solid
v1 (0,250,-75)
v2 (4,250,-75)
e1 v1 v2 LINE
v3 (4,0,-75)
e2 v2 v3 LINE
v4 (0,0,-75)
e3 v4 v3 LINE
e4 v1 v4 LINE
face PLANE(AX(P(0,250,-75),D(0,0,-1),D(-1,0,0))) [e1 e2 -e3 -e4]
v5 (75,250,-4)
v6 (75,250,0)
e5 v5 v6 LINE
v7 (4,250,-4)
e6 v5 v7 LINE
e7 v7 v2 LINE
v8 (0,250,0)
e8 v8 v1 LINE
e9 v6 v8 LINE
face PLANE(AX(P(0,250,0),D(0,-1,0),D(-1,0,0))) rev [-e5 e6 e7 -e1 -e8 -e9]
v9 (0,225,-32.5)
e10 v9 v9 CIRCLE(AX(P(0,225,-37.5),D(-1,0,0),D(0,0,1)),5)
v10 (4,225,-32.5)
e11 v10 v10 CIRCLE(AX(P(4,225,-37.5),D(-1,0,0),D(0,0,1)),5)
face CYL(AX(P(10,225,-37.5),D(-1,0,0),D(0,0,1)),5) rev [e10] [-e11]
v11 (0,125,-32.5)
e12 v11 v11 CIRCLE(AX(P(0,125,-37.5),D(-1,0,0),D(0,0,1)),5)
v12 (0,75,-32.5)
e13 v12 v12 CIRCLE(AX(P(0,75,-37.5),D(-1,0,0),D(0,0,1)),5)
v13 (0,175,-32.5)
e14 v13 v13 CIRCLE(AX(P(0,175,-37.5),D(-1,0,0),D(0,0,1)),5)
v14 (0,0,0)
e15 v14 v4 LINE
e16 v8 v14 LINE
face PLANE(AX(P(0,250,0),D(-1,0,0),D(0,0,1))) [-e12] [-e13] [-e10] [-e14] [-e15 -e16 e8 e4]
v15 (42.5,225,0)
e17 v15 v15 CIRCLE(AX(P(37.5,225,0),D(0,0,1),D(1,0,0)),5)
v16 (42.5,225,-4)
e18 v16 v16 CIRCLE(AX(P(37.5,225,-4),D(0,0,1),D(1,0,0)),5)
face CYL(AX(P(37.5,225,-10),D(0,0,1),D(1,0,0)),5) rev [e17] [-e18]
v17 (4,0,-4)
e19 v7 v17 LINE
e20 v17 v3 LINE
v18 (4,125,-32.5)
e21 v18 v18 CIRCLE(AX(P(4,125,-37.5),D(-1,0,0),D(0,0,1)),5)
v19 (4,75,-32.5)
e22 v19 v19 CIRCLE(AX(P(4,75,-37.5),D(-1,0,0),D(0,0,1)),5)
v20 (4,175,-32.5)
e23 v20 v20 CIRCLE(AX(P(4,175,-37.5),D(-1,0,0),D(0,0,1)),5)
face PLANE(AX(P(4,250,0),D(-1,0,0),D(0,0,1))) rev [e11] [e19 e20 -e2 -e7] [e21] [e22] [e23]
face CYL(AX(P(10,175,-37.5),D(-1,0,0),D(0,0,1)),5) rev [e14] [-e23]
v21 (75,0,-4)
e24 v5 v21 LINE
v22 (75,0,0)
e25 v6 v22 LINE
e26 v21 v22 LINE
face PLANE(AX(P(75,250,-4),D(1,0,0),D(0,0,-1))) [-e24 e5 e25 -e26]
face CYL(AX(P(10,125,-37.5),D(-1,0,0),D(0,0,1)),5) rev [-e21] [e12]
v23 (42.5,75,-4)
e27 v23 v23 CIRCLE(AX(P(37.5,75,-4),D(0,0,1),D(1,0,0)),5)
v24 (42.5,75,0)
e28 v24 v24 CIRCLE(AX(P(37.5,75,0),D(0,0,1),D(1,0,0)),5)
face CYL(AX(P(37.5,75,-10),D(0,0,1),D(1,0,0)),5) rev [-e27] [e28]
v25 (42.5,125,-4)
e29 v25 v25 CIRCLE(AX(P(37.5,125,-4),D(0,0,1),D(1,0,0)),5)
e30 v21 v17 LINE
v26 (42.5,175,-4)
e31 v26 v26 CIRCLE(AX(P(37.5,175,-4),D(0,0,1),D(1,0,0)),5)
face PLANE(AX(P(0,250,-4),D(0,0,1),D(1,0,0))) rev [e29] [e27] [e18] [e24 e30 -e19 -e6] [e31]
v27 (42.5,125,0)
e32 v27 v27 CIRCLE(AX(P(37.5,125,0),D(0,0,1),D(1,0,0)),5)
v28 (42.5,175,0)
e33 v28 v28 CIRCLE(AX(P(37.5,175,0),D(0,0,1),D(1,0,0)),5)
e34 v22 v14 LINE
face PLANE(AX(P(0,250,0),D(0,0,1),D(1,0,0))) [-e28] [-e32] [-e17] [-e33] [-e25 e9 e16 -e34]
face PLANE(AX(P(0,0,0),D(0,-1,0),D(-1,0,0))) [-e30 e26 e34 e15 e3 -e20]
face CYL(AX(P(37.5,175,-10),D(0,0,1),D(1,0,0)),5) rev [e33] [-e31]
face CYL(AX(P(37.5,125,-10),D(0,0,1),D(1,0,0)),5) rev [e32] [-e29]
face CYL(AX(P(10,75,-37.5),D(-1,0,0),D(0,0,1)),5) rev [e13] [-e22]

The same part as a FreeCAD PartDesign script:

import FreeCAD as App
import Part
import Sketcher

V = App.Vector
Q = App.Units.Quantity


def add_polygon(sketch, points):
    """Adds a closed chain of lines whose ends are joined by coincident constraints."""
    first, n = sketch.GeometryCount, len(points)
    for a, b in zip(points, points[1:] + points[:1]):
        sketch.addGeometry(Part.LineSegment(App.Vector(*a, 0), App.Vector(*b, 0)), False)
    for i in range(n):
        sketch.addConstraint(Sketcher.Constraint("Coincident", first + i, 2, first + (i + 1) % n, 1))

doc = App.newDocument("Part")
body = doc.addObject("PartDesign::Body", "Body")

# Sketch on XZ plane
sketch1 = body.newObject("Sketcher::SketchObject", "Sketch")
sketch1.AttachmentSupport = (doc.getObject("XZ_Plane"), [""])
sketch1.MapMode = "FlatFace"
add_polygon(sketch1, [(0, -75), (0, 0), (75, 0), (75, -4), (4, -4), (4, -75)])  # lines 0-5
sketch1.addConstraint([
    Sketcher.Constraint("Vertical", 0),
    Sketcher.Constraint("Horizontal", 1),
    Sketcher.Constraint("Vertical", 2),
    Sketcher.Constraint("Horizontal", 3),
    Sketcher.Constraint("Vertical", 4),
    Sketcher.Constraint("Horizontal", 5),
    Sketcher.Constraint("Coincident", 0, 2, -1, 1),
    Sketcher.Constraint("Equal", 1, 0),
    Sketcher.Constraint("Equal", 5, 2),
    Sketcher.Constraint("DistanceX", 1, 1, 1, 2, Q("75 mm")),
    Sketcher.Constraint("DistanceX", 3, 2, 3, 1, Q("71 mm")),
])
pad1 = body.newObject("PartDesign::Pad", "Pad")
pad1.Profile = sketch1
pad1.Length = 250
pad1.Reversed = True

# Sketch on XY plane
sketch2 = body.newObject("Sketcher::SketchObject", "Sketch001")
sketch2.AttachmentSupport = (doc.getObject("XY_Plane"), [""])
sketch2.MapMode = "FlatFace"
sketch2.addGeometry([
    Part.Circle(V(38, 225, 0), V(0, 0, 1), 5),
    Part.Circle(V(38, 175, 0), V(0, 0, 1), 5),
    Part.Circle(V(38, 125, 0), V(0, 0, 1), 5),
    Part.Circle(V(38, 75, 0), V(0, 0, 1), 5),
], False)
sketch2.addConstraint([
    Sketcher.Constraint("Equal", 0, 1),
    Sketcher.Constraint("Equal", 1, 2),
    Sketcher.Constraint("Equal", 2, 3),
    Sketcher.Constraint("Vertical", 0, 3, 1, 3),
    Sketcher.Constraint("Vertical", 1, 3, 2, 3),
    Sketcher.Constraint("Vertical", 2, 3, 3, 3),
    Sketcher.Constraint("Diameter", 0, Q("10 mm")),
    Sketcher.Constraint("DistanceY", -1, 1, 0, 3, Q("225 mm")),
    Sketcher.Constraint("DistanceY", -1, 1, 1, 3, Q("175 mm")),
    Sketcher.Constraint("DistanceY", -1, 1, 2, 3, Q("125 mm")),
    Sketcher.Constraint("DistanceY", -1, 1, 3, 3, Q("75 mm")),
    Sketcher.Constraint("DistanceX", -1, 1, 0, 3, Q("37.5 mm")),
])
pocket1 = body.newObject("PartDesign::Pocket", "Pocket")
pocket1.Profile = sketch2
pocket1.Length = 10

# Sketch on YZ plane
sketch3 = body.newObject("Sketcher::SketchObject", "Sketch002")
sketch3.AttachmentSupport = (doc.getObject("YZ_Plane"), [""])
sketch3.MapMode = "FlatFace"
sketch3.addGeometry([
    Part.Circle(V(225, -38, 0), V(0, 0, 1), 5),
    Part.Circle(V(175, -38, 0), V(0, 0, 1), 5),
    Part.Circle(V(125, -38, 0), V(0, 0, 1), 5),
    Part.Circle(V(75, -38, 0), V(0, 0, 1), 5),
], False)
sketch3.addConstraint([
    Sketcher.Constraint("Equal", 0, 1),
    Sketcher.Constraint("Equal", 1, 2),
    Sketcher.Constraint("Equal", 2, 3),
    Sketcher.Constraint("Horizontal", 0, 3, 1, 3),
    Sketcher.Constraint("Horizontal", 1, 3, 2, 3),
    Sketcher.Constraint("Horizontal", 2, 3, 3, 3),
    Sketcher.Constraint("Diameter", 0, Q("10 mm")),
    Sketcher.Constraint("DistanceX", -1, 1, 0, 3, Q("225 mm")),
    Sketcher.Constraint("DistanceX", -1, 1, 1, 3, Q("175 mm")),
    Sketcher.Constraint("DistanceX", -1, 1, 2, 3, Q("125 mm")),
    Sketcher.Constraint("DistanceX", -1, 1, 3, 3, Q("75 mm")),
    Sketcher.Constraint("DistanceY", 0, 3, -1, 1, Q("37.5 mm")),
])
pocket2 = body.newObject("PartDesign::Pocket", "Pocket001")
pocket2.Profile = sketch3
pocket2.Length = 10
pocket2.Reversed = True

doc.recompute()
